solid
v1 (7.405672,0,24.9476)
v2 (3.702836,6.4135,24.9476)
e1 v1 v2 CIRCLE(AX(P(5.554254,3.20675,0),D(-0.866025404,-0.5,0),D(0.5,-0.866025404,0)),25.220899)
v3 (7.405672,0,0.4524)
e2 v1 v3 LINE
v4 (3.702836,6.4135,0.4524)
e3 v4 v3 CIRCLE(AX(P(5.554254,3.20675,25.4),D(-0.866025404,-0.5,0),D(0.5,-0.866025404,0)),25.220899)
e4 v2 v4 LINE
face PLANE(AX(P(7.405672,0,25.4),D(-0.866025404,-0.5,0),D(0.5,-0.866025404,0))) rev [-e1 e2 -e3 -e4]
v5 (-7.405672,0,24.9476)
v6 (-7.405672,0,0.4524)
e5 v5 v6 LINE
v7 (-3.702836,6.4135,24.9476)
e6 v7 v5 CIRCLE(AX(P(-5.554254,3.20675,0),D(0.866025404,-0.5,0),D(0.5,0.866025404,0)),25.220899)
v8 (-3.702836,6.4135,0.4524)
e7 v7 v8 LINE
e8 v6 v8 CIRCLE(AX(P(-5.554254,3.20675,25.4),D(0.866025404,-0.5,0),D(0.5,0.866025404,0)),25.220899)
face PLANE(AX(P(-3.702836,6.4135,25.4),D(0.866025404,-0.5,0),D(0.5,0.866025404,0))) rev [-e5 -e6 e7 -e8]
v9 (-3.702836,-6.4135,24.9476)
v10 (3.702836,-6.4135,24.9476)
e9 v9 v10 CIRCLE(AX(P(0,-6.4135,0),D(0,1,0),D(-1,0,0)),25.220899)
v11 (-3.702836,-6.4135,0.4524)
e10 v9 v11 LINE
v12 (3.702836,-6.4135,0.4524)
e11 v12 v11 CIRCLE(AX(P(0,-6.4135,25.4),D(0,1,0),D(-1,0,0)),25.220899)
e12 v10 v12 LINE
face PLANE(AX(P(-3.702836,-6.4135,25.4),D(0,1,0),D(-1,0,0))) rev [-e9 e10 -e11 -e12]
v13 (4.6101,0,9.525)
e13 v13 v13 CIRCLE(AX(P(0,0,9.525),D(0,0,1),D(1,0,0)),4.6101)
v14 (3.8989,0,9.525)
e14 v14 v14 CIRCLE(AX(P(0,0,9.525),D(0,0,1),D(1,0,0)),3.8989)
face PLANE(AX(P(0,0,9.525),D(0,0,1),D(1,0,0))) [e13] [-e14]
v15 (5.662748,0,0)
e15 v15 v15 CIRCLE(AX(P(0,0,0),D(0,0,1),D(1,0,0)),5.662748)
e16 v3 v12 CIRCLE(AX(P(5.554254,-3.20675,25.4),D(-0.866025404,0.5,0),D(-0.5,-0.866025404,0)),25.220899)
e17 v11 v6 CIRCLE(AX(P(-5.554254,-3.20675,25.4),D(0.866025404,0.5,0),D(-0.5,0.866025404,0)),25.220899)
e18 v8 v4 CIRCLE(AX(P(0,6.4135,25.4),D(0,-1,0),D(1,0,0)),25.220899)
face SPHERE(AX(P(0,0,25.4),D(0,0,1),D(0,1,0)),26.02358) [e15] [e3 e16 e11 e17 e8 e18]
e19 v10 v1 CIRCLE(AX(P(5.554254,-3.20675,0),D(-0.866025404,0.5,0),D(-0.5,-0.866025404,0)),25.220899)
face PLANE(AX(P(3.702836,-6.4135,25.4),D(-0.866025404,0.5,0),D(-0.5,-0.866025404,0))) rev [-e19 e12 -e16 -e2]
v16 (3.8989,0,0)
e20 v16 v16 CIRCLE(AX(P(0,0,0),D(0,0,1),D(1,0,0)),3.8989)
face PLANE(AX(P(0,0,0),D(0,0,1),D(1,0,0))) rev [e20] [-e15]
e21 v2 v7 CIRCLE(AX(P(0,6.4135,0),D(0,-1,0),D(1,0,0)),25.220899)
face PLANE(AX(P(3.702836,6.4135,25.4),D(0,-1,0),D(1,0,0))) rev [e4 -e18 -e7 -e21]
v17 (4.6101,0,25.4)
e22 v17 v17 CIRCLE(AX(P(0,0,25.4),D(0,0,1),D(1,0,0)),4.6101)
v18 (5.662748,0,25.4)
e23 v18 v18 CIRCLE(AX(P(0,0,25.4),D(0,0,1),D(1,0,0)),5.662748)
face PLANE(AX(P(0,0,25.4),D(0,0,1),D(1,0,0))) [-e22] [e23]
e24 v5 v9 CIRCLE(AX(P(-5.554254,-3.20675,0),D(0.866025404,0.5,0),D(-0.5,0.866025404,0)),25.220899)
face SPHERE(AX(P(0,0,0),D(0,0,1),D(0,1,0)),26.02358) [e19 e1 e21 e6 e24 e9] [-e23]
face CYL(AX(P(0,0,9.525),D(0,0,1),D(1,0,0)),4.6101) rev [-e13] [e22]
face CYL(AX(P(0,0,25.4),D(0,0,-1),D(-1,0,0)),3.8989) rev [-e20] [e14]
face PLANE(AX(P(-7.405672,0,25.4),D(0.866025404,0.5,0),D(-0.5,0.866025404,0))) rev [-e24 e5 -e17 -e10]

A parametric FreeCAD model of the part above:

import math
import FreeCAD as App
import Part
import Sketcher
from FreeCAD import Vector
Q = App.Units.Quantity

doc = App.newDocument("Part")
params = doc.addObject("Spreadsheet::Sheet", "Params")
for row, (alias, value) in enumerate([
    ("sketch1_diameter", "0.307 in"),
    ("pad1_length", "1 in"),
    ("sketch2_diameter", "0.363 in"),
    ("pocket1_length", "0.625 in"),
    ("groove_angle", "360 deg"),
], start=1):
    params.set(f"A{row}", alias)
    params.set(f"B{row}", "=" + value)
    params.setAlias(f"B{row}", alias)

body = doc.addObject("PartDesign::Body", "Body")

# Sketch on XY plane
sketch1 = body.newObject("Sketcher::SketchObject", "Sketch")
sketch1.AttachmentSupport = (doc.getObject("XY_Plane"), [""])
sketch1.MapMode = "FlatFace"
sketch1.addGeometry(Part.LineSegment(Vector(7.4, 0, 0), Vector(3.7, 6.4, 0)), False)
sketch1.addGeometry(Part.LineSegment(Vector(3.7, 6.4, 0), Vector(-3.7, 6.4, 0)), False)
sketch1.addGeometry(Part.LineSegment(Vector(-3.7, 6.4, 0), Vector(-7.4, 0, 0)), False)
sketch1.addGeometry(Part.LineSegment(Vector(-7.4, 0, 0), Vector(-3.7, -6.4, 0)), False)
sketch1.addGeometry(Part.LineSegment(Vector(-3.7, -6.4, 0), Vector(3.7, -6.4, 0)), False)
sketch1.addGeometry(Part.LineSegment(Vector(3.7, -6.4, 0), Vector(7.4, 0, 0)), False)
sketch1.addGeometry(Part.Circle(Vector(0, 0, 0), Vector(0, 0, 1), 3.9), False)
sketch1.addConstraint(Sketcher.Constraint("Coincident", 0, 2, 1, 1))
sketch1.addConstraint(Sketcher.Constraint("Coincident", 1, 2, 2, 1))
sketch1.addConstraint(Sketcher.Constraint("Coincident", 2, 2, 3, 1))
sketch1.addConstraint(Sketcher.Constraint("Coincident", 3, 2, 4, 1))
sketch1.addConstraint(Sketcher.Constraint("Coincident", 4, 2, 5, 1))
sketch1.addConstraint(Sketcher.Constraint("Coincident", 5, 2, 0, 1))
sketch1.addConstraint(Sketcher.Constraint("Horizontal", 1))
sketch1.addConstraint(Sketcher.Constraint("Horizontal", 4))
sketch1.addConstraint(Sketcher.Constraint("Coincident", 6, 3, -1, 1))
sketch1.addConstraint(Sketcher.Constraint("Symmetric", 0, 2, 3, 2, -1, 1))
sketch1.addConstraint(Sketcher.Constraint("Symmetric", 2, 2, 5, 2, -1, 1))
sketch1.addConstraint(Sketcher.Constraint("PointOnObject", 2, 2, -1))
sketch1.addConstraint(Sketcher.Constraint("Parallel", 2, 5))
sketch1.addConstraint(Sketcher.Constraint("Vertical", 1, 2, 3, 2))
sketch1.addConstraint(Sketcher.Constraint("Diameter", 6, Q("0.307 in")))
sketch1.addConstraint(Sketcher.Constraint("Angle", 0, Q("120 deg")))
sketch1.addConstraint(Sketcher.Constraint("DistanceY", 3, 2, 1, 2, Q("0.505 in")))
sketch1.addConstraint(Sketcher.Constraint("DistanceX", 1, 2, 1, 1, Q("7.405672 mm")))
sketch1.setExpression("Constraints[14]", "Params.sketch1_diameter")
pad1 = body.newObject("PartDesign::Pad", "Pad")
pad1.Profile = sketch1
pad1.setExpression("Length", "Params.pad1_length")

# Sketch on XY plane
sketch2 = body.newObject("Sketcher::SketchObject", "Sketch001")
sketch2.AttachmentSupport = (doc.getObject("XY_Plane"), [""])
sketch2.MapMode = "FlatFace"
sketch2.AttachmentOffset = App.Placement(Vector(0, 0, 1 * 25.4), App.Rotation())
sketch2.addGeometry(Part.Circle(Vector(0, 0, 0), Vector(0, 0, 1), 4.6), False)
sketch2.addConstraint(Sketcher.Constraint("Coincident", 0, 3, -1, 1))
sketch2.addConstraint(Sketcher.Constraint("Diameter", 0, Q("0.363 in")))
sketch2.setExpression("Constraints[1]", "Params.sketch2_diameter")
pocket1 = body.newObject("PartDesign::Pocket", "Pocket")
pocket1.Profile = sketch2
pocket1.setExpression("Length", "Params.pocket1_length")

# Sketch on YZ plane
sketch3 = body.newObject("Sketcher::SketchObject", "Sketch002")
sketch3.AttachmentSupport = (doc.getObject("YZ_Plane"), [""])
sketch3.MapMode = "FlatFace"
sketch3.addGeometry(Part.LineSegment(Vector(0, -1, 0), Vector(0, -6, 0)), False)
sketch3.addGeometry(Part.ArcOfCircle(Part.Circle(Vector(0, 25, 0), Vector(0, 0, 1), 31), math.radians(-90), math.radians(-70)), False)
sketch3.addGeometry(Part.LineSegment(Vector(11, -4, 0), Vector(11, 2, 0)), False)
sketch3.addGeometry(Part.ArcOfCircle(Part.Circle(Vector(0, 25, 0), Vector(0, 0, 1), 26), math.radians(-90), math.radians(-66)), False)
sketch3.addGeometry(Part.LineSegment(Vector(11, 24, 0), Vector(11, 29, 0)), False)
sketch3.addGeometry(Part.ArcOfCircle(Part.Circle(Vector(0, 0, 0), Vector(0, 0, 1), 31), math.radians(70), math.radians(90)), False)
sketch3.addGeometry(Part.LineSegment(Vector(0, 31, 0), Vector(0, 26, 0)), False)
sketch3.addGeometry(Part.ArcOfCircle(Part.Circle(Vector(0, 0, 0), Vector(0, 0, 1), 26), math.radians(66), math.radians(90)), False)
sketch3.addConstraint(Sketcher.Constraint("Coincident", 0, 2, 1, 1))
sketch3.addConstraint(Sketcher.Constraint("Coincident", 1, 2, 2, 1))
sketch3.addConstraint(Sketcher.Constraint("Coincident", 2, 2, 3, 2))
sketch3.addConstraint(Sketcher.Constraint("Coincident", 3, 1, 0, 1))
sketch3.addConstraint(Sketcher.Constraint("Coincident", 4, 2, 5, 1))
sketch3.addConstraint(Sketcher.Constraint("Coincident", 5, 2, 6, 1))
sketch3.addConstraint(Sketcher.Constraint("Coincident", 6, 2, 7, 2))
sketch3.addConstraint(Sketcher.Constraint("Coincident", 7, 1, 4, 1))
sketch3.addConstraint(Sketcher.Constraint("Vertical", 0))
sketch3.addConstraint(Sketcher.Constraint("Vertical", 2))
sketch3.addConstraint(Sketcher.Constraint("Vertical", 4))
sketch3.addConstraint(Sketcher.Constraint("Vertical", 6))
sketch3.addConstraint(Sketcher.Constraint("Coincident", 5, 3, -1, 1))
sketch3.addConstraint(Sketcher.Constraint("Coincident", 7, 3, -1, 1))
sketch3.addConstraint(Sketcher.Constraint("Coincident", 3, 3, 1, 3))
sketch3.addConstraint(Sketcher.Constraint("Equal", 1, 5))
sketch3.addConstraint(Sketcher.Constraint("Equal", 3, 7))
sketch3.addConstraint(Sketcher.Constraint("PointOnObject", 1, 3, -2))
sketch3.addConstraint(Sketcher.Constraint("PointOnObject", 0, 2, -2))
sketch3.addConstraint(Sketcher.Constraint("PointOnObject", 5, 2, -2))
sketch3.addConstraint(Sketcher.Constraint("Vertical", 2, 2, 4, 2))
sketch3.addConstraint(Sketcher.Constraint("DistanceY", -1, 1, 1, 3, Q("1 in")))
sketch3.addConstraint(Sketcher.Constraint("Radius", 3, Q("26.02358 mm")))
sketch3.addConstraint(Sketcher.Constraint("Radius", 1, Q("31.058106 mm")))
sketch3.addConstraint(Sketcher.Constraint("DistanceY", 2, 1, 2, 2, Q("5.428979 mm")))
groove = body.newObject("PartDesign::Groove", "Groove")
groove.Profile = sketch3
groove.ReferenceAxis = (sketch3, ["V_Axis"])
groove.setExpression("Angle", "Params.groove_angle")

doc.recompute()
